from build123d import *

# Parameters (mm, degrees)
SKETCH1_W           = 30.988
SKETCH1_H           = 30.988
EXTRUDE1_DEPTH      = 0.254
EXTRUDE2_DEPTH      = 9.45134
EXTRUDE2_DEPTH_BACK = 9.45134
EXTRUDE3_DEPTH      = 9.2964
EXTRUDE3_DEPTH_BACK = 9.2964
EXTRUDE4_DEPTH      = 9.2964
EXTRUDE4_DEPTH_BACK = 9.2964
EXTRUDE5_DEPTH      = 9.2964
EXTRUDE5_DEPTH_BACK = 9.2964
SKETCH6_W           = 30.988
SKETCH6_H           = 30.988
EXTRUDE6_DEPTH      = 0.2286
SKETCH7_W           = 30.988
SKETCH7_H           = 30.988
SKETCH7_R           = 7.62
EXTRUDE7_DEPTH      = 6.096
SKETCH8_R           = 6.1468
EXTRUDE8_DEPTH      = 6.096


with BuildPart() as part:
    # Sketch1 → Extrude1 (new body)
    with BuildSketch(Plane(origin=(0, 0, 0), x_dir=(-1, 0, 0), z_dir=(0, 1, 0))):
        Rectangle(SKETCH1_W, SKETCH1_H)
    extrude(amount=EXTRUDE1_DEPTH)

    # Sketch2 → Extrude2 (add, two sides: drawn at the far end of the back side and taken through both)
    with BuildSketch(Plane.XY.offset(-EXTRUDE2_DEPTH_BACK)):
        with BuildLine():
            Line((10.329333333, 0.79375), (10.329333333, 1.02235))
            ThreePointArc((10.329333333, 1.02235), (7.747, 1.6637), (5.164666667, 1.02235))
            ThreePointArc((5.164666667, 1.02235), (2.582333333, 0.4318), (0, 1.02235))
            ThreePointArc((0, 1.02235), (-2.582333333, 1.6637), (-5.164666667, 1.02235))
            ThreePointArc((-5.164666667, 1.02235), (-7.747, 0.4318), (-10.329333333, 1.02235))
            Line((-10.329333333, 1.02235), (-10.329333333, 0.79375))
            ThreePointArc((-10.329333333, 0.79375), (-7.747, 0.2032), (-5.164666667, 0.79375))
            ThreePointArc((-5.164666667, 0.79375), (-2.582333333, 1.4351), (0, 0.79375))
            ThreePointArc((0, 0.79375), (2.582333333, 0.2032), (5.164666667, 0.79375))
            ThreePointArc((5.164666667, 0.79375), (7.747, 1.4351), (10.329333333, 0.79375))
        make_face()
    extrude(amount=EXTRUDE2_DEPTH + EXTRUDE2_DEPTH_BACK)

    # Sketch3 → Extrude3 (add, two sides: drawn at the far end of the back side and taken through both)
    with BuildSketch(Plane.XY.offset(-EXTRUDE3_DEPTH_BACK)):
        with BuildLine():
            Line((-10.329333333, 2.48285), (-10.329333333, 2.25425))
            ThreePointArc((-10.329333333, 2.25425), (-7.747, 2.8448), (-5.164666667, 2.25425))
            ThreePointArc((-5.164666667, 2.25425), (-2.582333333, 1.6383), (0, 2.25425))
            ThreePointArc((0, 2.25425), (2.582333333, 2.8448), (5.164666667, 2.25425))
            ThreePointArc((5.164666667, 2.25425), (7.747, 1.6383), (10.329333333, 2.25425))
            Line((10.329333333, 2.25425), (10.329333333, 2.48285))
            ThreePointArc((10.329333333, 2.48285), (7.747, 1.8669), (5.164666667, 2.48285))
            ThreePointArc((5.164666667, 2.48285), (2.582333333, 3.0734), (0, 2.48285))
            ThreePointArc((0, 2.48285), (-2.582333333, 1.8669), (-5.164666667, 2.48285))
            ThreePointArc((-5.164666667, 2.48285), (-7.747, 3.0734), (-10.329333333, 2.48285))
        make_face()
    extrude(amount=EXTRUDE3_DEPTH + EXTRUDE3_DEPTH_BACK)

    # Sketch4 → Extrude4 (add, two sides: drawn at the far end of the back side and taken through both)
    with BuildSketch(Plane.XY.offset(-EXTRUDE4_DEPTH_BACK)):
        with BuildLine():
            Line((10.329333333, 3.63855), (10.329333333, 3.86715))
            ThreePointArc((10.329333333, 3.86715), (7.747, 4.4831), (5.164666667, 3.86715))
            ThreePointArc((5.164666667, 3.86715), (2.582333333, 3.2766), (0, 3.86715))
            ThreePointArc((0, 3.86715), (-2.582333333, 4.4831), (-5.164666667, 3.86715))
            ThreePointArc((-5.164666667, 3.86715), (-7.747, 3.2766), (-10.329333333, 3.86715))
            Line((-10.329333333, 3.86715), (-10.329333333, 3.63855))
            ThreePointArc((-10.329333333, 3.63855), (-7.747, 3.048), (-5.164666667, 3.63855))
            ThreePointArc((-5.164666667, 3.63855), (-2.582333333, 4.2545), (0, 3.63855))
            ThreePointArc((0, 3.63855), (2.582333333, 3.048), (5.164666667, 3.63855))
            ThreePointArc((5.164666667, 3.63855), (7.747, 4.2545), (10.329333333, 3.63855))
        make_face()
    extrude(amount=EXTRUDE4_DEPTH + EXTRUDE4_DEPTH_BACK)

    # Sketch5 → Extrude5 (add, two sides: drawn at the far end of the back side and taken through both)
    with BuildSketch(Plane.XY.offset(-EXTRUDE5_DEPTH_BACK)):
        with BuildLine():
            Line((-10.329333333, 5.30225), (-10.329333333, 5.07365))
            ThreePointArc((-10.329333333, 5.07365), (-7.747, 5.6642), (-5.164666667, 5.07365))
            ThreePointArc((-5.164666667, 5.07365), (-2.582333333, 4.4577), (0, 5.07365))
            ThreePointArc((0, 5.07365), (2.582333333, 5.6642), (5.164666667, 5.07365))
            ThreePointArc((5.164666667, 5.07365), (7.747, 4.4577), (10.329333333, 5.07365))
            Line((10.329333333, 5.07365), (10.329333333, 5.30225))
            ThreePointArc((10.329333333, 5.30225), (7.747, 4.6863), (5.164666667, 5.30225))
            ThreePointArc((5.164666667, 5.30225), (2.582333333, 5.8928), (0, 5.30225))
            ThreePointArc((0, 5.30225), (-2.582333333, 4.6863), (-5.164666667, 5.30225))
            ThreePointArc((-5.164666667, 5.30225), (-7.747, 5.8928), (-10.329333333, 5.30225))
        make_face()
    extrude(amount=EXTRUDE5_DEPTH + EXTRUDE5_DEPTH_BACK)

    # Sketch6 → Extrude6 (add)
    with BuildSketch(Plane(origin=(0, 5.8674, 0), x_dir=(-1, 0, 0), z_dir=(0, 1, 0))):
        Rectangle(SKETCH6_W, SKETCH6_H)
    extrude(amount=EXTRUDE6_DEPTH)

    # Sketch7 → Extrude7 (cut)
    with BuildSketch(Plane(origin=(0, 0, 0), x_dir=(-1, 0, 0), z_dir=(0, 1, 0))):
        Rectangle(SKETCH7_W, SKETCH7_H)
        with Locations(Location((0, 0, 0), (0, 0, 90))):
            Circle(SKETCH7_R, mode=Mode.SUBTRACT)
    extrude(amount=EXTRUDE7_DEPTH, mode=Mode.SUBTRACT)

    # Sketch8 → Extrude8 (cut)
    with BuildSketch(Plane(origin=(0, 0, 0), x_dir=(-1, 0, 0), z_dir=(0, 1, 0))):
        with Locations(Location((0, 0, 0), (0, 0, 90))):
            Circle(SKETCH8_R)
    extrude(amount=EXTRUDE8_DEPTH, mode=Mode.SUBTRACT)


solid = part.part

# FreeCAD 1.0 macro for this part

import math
import FreeCAD as App
import Part
import Sketcher
Q = App.Units.Quantity


def add_polygon(sketch, points):
    """Adds a closed chain of lines whose ends are joined by coincident constraints."""
    first, n = sketch.GeometryCount, len(points)
    for a, b in zip(points, points[1:] + points[:1]):
        sketch.addGeometry(Part.LineSegment(App.Vector(*a, 0), App.Vector(*b, 0)), False)
    for i in range(n):
        sketch.addConstraint(Sketcher.Constraint("Coincident", first + i, 2, first + (i + 1) % n, 1))

doc = App.newDocument("Part")
params = doc.addObject("Spreadsheet::Sheet", "Params")
for row, (alias, value) in enumerate([
    ("sketch1_width", "1.22 in"),
    ("pad1_length", "0.01 in"),
    ("sketch2_height", "0.009 in"),
    ("pad2_length", "0.3721 in"),
    ("pad2_length2", "0.3721 in"),
    ("sketch3_height", "0.009 in"),
    ("pad3_length", "0.366 in"),
    ("pad3_length2", "0.366 in"),
    ("sketch4_height", "0.009 in"),
    ("pad4_length", "0.366 in"),
    ("pad4_length2", "0.366 in"),
    ("sketch5_height", "0.009 in"),
    ("pad5_length", "0.366 in"),
    ("pad5_length2", "0.366 in"),
    ("sketch6_width", "1.22 in"),
    ("pad6_length", "0.009 in"),
    ("sketch7_diameter", "0.6 in"),
    ("sketch7_width", "1.22 in"),
    ("pocket1_length", "0.24 in"),
    ("sketch8_diameter", "0.484 in"),
    ("pocket2_length", "0.24 in"),
], start=1):
    params.set(f"A{row}", alias)
    params.set(f"B{row}", "=" + value)
    params.setAlias(f"B{row}", alias)

body = doc.addObject("PartDesign::Body", "Body")

# Sketch on XZ plane
sketch1 = body.newObject("Sketcher::SketchObject", "Sketch")
sketch1.AttachmentSupport = (doc.getObject("XZ_Plane"), [""])
sketch1.MapMode = "FlatFace"
add_polygon(sketch1, [(15, 15), (15, -15), (-15, -15), (-15, 15)])  # lines 0-3
sketch1.addConstraint([
    Sketcher.Constraint("Vertical", 0),
    Sketcher.Constraint("Horizontal", 1),
    Sketcher.Constraint("Vertical", 2),
    Sketcher.Constraint("Horizontal", 3),
    Sketcher.Constraint("Symmetric", 0, 2, 2, 2, -1, 1),
    Sketcher.Constraint("Equal", 3, 0),
    Sketcher.Constraint("DistanceX", 1, 2, 1, 1, Q("1.22 in")),
])
sketch1.setExpression("Constraints[10]", "Params.sketch1_width")
pad1 = body.newObject("PartDesign::Pad", "Pad")
pad1.Profile = sketch1
pad1.setExpression("Length", "Params.pad1_length")
pad1.Reversed = True

# Sketch on XY plane
sketch2 = body.newObject("Sketcher::SketchObject", "Sketch001")
sketch2.AttachmentSupport = (doc.getObject("XY_Plane"), [""])
sketch2.MapMode = "FlatFace"
sketch2.addGeometry([
    Part.LineSegment(App.Vector(10.33, 0.79, 0), App.Vector(10.33, 1.02, 0)),  # 0
    Part.ArcOfCircle(Part.Circle(App.Vector(7.75, -3.86, 0), App.Vector(0, 0, 1), 5.52), math.radians(62), math.radians(118)),  # 1
    Part.ArcOfCircle(Part.Circle(App.Vector(2.58, 6.37, 0), App.Vector(0, 0, 1), 5.94), math.radians(-116), math.radians(-64)),  # 2
    Part.ArcOfCircle(Part.Circle(App.Vector(-2.58, -3.86, 0), App.Vector(0, 0, 1), 5.52), math.radians(62), math.radians(118)),  # 3
    Part.ArcOfCircle(Part.Circle(App.Vector(-7.75, 6.37, 0), App.Vector(0, 0, 1), 5.94), math.radians(-116), math.radians(-64)),  # 4
    Part.LineSegment(App.Vector(-10.33, 1.02, 0), App.Vector(-10.33, 0.79, 0)),  # 5
    Part.ArcOfCircle(Part.Circle(App.Vector(-7.75, 6.14, 0), App.Vector(0, 0, 1), 5.94), math.radians(-116), math.radians(-64)),  # 6
    Part.ArcOfCircle(Part.Circle(App.Vector(-2.58, -4.08, 0), App.Vector(0, 0, 1), 5.52), math.radians(62), math.radians(118)),  # 7
    Part.ArcOfCircle(Part.Circle(App.Vector(2.58, 6.14, 0), App.Vector(0, 0, 1), 5.94), math.radians(-116), math.radians(-64)),  # 8
    Part.ArcOfCircle(Part.Circle(App.Vector(7.75, -4.08, 0), App.Vector(0, 0, 1), 5.52), math.radians(62), math.radians(118)),  # 9
], False)
sketch2.addConstraint([
    Sketcher.Constraint("Coincident", 0, 2, 1, 1),
    Sketcher.Constraint("Coincident", 1, 2, 2, 2),
    Sketcher.Constraint("Coincident", 2, 1, 3, 1),
    Sketcher.Constraint("Coincident", 3, 2, 4, 2),
    Sketcher.Constraint("Coincident", 4, 1, 5, 1),
    Sketcher.Constraint("Coincident", 5, 2, 6, 1),
    Sketcher.Constraint("Coincident", 6, 2, 7, 2),
    Sketcher.Constraint("Coincident", 7, 1, 8, 1),
    Sketcher.Constraint("Coincident", 8, 2, 9, 2),
    Sketcher.Constraint("Coincident", 9, 1, 0, 1),
    Sketcher.Constraint("Vertical", 0),
    Sketcher.Constraint("Vertical", 5),
    Sketcher.Constraint("Equal", 1, 3),
    Sketcher.Constraint("Equal", 2, 4),
    Sketcher.Constraint("Equal", 4, 6),
    Sketcher.Constraint("Equal", 3, 7),
    Sketcher.Constraint("Equal", 6, 8),
    Sketcher.Constraint("Equal", 7, 9),
    Sketcher.Constraint("Symmetric", 1, 2, 3, 2, -2),
    Sketcher.Constraint("Symmetric", 0, 2, 4, 1, -2),
    Sketcher.Constraint("Symmetric", 6, 2, 8, 2, -2),
    Sketcher.Constraint("PointOnObject", 2, 1, -2),
    Sketcher.Constraint("PointOnObject", 7, 1, -2),
    Sketcher.Constraint("Horizontal", 1, 3, 3, 3),
    Sketcher.Constraint("Horizontal", 2, 3, 4, 3),
    Sketcher.Constraint("Horizontal", 6, 3, 8, 3),
    Sketcher.Constraint("Horizontal", 7, 3, 9, 3),
    Sketcher.Constraint("Horizontal", 0, 2, 1, 2),
    Sketcher.Constraint("Horizontal", 5, 2, 6, 2),
    Sketcher.Constraint("Horizontal", 6, 2, 7, 1),
    Sketcher.Constraint("DistanceY", 0, 1, 0, 2, Q("0.009 in")),
    Sketcher.Constraint("DistanceX", 4, 3, 1, 3, Q("0.61 in")),
    Sketcher.Constraint("DistanceY", -1, 1, 5, 2, Q("0.03125 in")),
    Sketcher.Constraint("Radius", 1, 5.519432),
    Sketcher.Constraint("Radius", 2, 5.941237),
])
sketch2.setExpression("Constraints[30]", "Params.sketch2_height")
pad2 = body.newObject("PartDesign::Pad", "Pad001")
pad2.Profile = sketch2
pad2.Type = "TwoLengths"
pad2.setExpression("Length", "Params.pad2_length")
pad2.setExpression("Length2", "Params.pad2_length2")

# Sketch on XY plane
sketch3 = body.newObject("Sketcher::SketchObject", "Sketch002")
sketch3.AttachmentSupport = (doc.getObject("XY_Plane"), [""])
sketch3.MapMode = "FlatFace"
sketch3.addGeometry([
    Part.LineSegment(App.Vector(-10.33, 2.48, 0), App.Vector(-10.33, 2.25, 0)),  # 0
    Part.ArcOfCircle(Part.Circle(App.Vector(-7.75, -3.1, 0), App.Vector(0, 0, 1), 5.94), math.radians(64), math.radians(116)),  # 1
    Part.ArcOfCircle(Part.Circle(App.Vector(-2.58, 7.36, 0), App.Vector(0, 0, 1), 5.72), math.radians(-117), math.radians(-63)),  # 2
    Part.ArcOfCircle(Part.Circle(App.Vector(2.58, -3.1, 0), App.Vector(0, 0, 1), 5.94), math.radians(64), math.radians(116)),  # 3
    Part.ArcOfCircle(Part.Circle(App.Vector(7.75, 7.36, 0), App.Vector(0, 0, 1), 5.72), math.radians(-117), math.radians(-63)),  # 4
    Part.LineSegment(App.Vector(10.33, 2.25, 0), App.Vector(10.33, 2.48, 0)),  # 5
    Part.ArcOfCircle(Part.Circle(App.Vector(7.75, 7.59, 0), App.Vector(0, 0, 1), 5.72), math.radians(-117), math.radians(-63)),  # 6
    Part.ArcOfCircle(Part.Circle(App.Vector(2.58, -2.87, 0), App.Vector(0, 0, 1), 5.94), math.radians(64), math.radians(116)),  # 7
    Part.ArcOfCircle(Part.Circle(App.Vector(-2.58, 7.59, 0), App.Vector(0, 0, 1), 5.72), math.radians(-117), math.radians(-63)),  # 8
    Part.ArcOfCircle(Part.Circle(App.Vector(-7.75, -2.87, 0), App.Vector(0, 0, 1), 5.94), math.radians(64), math.radians(116)),  # 9
], False)
sketch3.addConstraint([
    Sketcher.Constraint("Coincident", 0, 2, 1, 2),
    Sketcher.Constraint("Coincident", 1, 1, 2, 1),
    Sketcher.Constraint("Coincident", 2, 2, 3, 2),
    Sketcher.Constraint("Coincident", 3, 1, 4, 1),
    Sketcher.Constraint("Coincident", 4, 2, 5, 1),
    Sketcher.Constraint("Coincident", 5, 2, 6, 2),
    Sketcher.Constraint("Coincident", 6, 1, 7, 1),
    Sketcher.Constraint("Coincident", 7, 2, 8, 2),
    Sketcher.Constraint("Coincident", 8, 1, 9, 1),
    Sketcher.Constraint("Coincident", 9, 2, 0, 1),
    Sketcher.Constraint("Vertical", 0),
    Sketcher.Constraint("Vertical", 5),
    Sketcher.Constraint("Equal", 1, 3),
    Sketcher.Constraint("Equal", 2, 4),
    Sketcher.Constraint("Equal", 4, 6),
    Sketcher.Constraint("Equal", 3, 7),
    Sketcher.Constraint("Equal", 6, 8),
    Sketcher.Constraint("Equal", 7, 9),
    Sketcher.Constraint("Symmetric", 1, 1, 3, 1, -2),
    Sketcher.Constraint("Symmetric", 0, 2, 4, 2, -2),
    Sketcher.Constraint("Symmetric", 6, 1, 8, 1, -2),
    Sketcher.Constraint("PointOnObject", 2, 2, -2),
    Sketcher.Constraint("PointOnObject", 7, 2, -2),
    Sketcher.Constraint("Horizontal", 1, 3, 3, 3),
    Sketcher.Constraint("Horizontal", 2, 3, 4, 3),
    Sketcher.Constraint("Horizontal", 6, 3, 8, 3),
    Sketcher.Constraint("Horizontal", 7, 3, 9, 3),
    Sketcher.Constraint("Horizontal", 0, 2, 1, 1),
    Sketcher.Constraint("Horizontal", 5, 2, 6, 1),
    Sketcher.Constraint("Horizontal", 6, 1, 7, 2),
    Sketcher.Constraint("DistanceY", 0, 2, 0, 1, Q("0.009 in")),
    Sketcher.Constraint("DistanceX", 1, 3, 4, 3, Q("0.61 in")),
    Sketcher.Constraint("Radius", 1, 5.941237),
    Sketcher.Constraint("Radius", 2, 5.721114),
    Sketcher.Constraint("DistanceY", -1, 1, 0, 2, 2.25425),
])
sketch3.setExpression("Constraints[30]", "Params.sketch3_height")
pad3 = body.newObject("PartDesign::Pad", "Pad002")
pad3.Profile = sketch3
pad3.Type = "TwoLengths"
pad3.setExpression("Length", "Params.pad3_length")
pad3.setExpression("Length2", "Params.pad3_length2")

# Sketch on XY plane
sketch4 = body.newObject("Sketcher::SketchObject", "Sketch003")
sketch4.AttachmentSupport = (doc.getObject("XY_Plane"), [""])
sketch4.MapMode = "FlatFace"
sketch4.addGeometry([
    Part.LineSegment(App.Vector(10.33, 3.64, 0), App.Vector(10.33, 3.87, 0)),  # 0
    Part.ArcOfCircle(Part.Circle(App.Vector(7.75, -1.24, 0), App.Vector(0, 0, 1), 5.72), math.radians(63), math.radians(117)),  # 1
    Part.ArcOfCircle(Part.Circle(App.Vector(2.58, 9.22, 0), App.Vector(0, 0, 1), 5.94), math.radians(-116), math.radians(-64)),  # 2
    Part.ArcOfCircle(Part.Circle(App.Vector(-2.58, -1.24, 0), App.Vector(0, 0, 1), 5.72), math.radians(63), math.radians(117)),  # 3
    Part.ArcOfCircle(Part.Circle(App.Vector(-7.75, 9.22, 0), App.Vector(0, 0, 1), 5.94), math.radians(-116), math.radians(-64)),  # 4
    Part.LineSegment(App.Vector(-10.33, 3.87, 0), App.Vector(-10.33, 3.64, 0)),  # 5
    Part.ArcOfCircle(Part.Circle(App.Vector(-7.75, 8.99, 0), App.Vector(0, 0, 1), 5.94), math.radians(-116), math.radians(-64)),  # 6
    Part.ArcOfCircle(Part.Circle(App.Vector(-2.58, -1.47, 0), App.Vector(0, 0, 1), 5.72), math.radians(63), math.radians(117)),  # 7
    Part.ArcOfCircle(Part.Circle(App.Vector(2.58, 8.99, 0), App.Vector(0, 0, 1), 5.94), math.radians(-116), math.radians(-64)),  # 8
    Part.ArcOfCircle(Part.Circle(App.Vector(7.75, -1.47, 0), App.Vector(0, 0, 1), 5.72), math.radians(63), math.radians(117)),  # 9
], False)
sketch4.addConstraint([
    Sketcher.Constraint("Coincident", 0, 2, 1, 1),
    Sketcher.Constraint("Coincident", 1, 2, 2, 2),
    Sketcher.Constraint("Coincident", 2, 1, 3, 1),
    Sketcher.Constraint("Coincident", 3, 2, 4, 2),
    Sketcher.Constraint("Coincident", 4, 1, 5, 1),
    Sketcher.Constraint("Coincident", 5, 2, 6, 1),
    Sketcher.Constraint("Coincident", 6, 2, 7, 2),
    Sketcher.Constraint("Coincident", 7, 1, 8, 1),
    Sketcher.Constraint("Coincident", 8, 2, 9, 2),
    Sketcher.Constraint("Coincident", 9, 1, 0, 1),
    Sketcher.Constraint("Vertical", 0),
    Sketcher.Constraint("Vertical", 5),
    Sketcher.Constraint("Equal", 1, 3),
    Sketcher.Constraint("Equal", 2, 4),
    Sketcher.Constraint("Equal", 4, 6),
    Sketcher.Constraint("Equal", 3, 7),
    Sketcher.Constraint("Equal", 6, 8),
    Sketcher.Constraint("Equal", 7, 9),
    Sketcher.Constraint("Symmetric", 1, 2, 3, 2, -2),
    Sketcher.Constraint("Symmetric", 0, 2, 4, 1, -2),
    Sketcher.Constraint("Symmetric", 6, 2, 8, 2, -2),
    Sketcher.Constraint("PointOnObject", 2, 1, -2),
    Sketcher.Constraint("PointOnObject", 7, 1, -2),
    Sketcher.Constraint("Horizontal", 1, 3, 3, 3),
    Sketcher.Constraint("Horizontal", 2, 3, 4, 3),
    Sketcher.Constraint("Horizontal", 6, 3, 8, 3),
    Sketcher.Constraint("Horizontal", 7, 3, 9, 3),
    Sketcher.Constraint("Horizontal", 0, 2, 1, 2),
    Sketcher.Constraint("Horizontal", 5, 2, 6, 2),
    Sketcher.Constraint("Horizontal", 6, 2, 7, 1),
    Sketcher.Constraint("DistanceY", 0, 1, 0, 2, Q("0.009 in")),
    Sketcher.Constraint("DistanceX", 4, 3, 1, 3, Q("0.61 in")),
    Sketcher.Constraint("Radius", 1, 5.721114),
    Sketcher.Constraint("Radius", 2, 5.941237),
    Sketcher.Constraint("DistanceY", -1, 1, 0, 2, 3.86715),
])
sketch4.setExpression("Constraints[30]", "Params.sketch4_height")
pad4 = body.newObject("PartDesign::Pad", "Pad003")
pad4.Profile = sketch4
pad4.Type = "TwoLengths"
pad4.setExpression("Length", "Params.pad4_length")
pad4.setExpression("Length2", "Params.pad4_length2")

# Sketch on XY plane
sketch5 = body.newObject("Sketcher::SketchObject", "Sketch004")
sketch5.AttachmentSupport = (doc.getObject("XY_Plane"), [""])
sketch5.MapMode = "FlatFace"
sketch5.addGeometry([
    Part.LineSegment(App.Vector(-10.33, 5.3, 0), App.Vector(-10.33, 5.07, 0)),  # 0
    Part.ArcOfCircle(Part.Circle(App.Vector(-7.75, -0.28, 0), App.Vector(0, 0, 1), 5.94), math.radians(64), math.radians(116)),  # 1
    Part.ArcOfCircle(Part.Circle(App.Vector(-2.58, 10.18, 0), App.Vector(0, 0, 1), 5.72), math.radians(-117), math.radians(-63)),  # 2
    Part.ArcOfCircle(Part.Circle(App.Vector(2.58, -0.28, 0), App.Vector(0, 0, 1), 5.94), math.radians(64), math.radians(116)),  # 3
    Part.ArcOfCircle(Part.Circle(App.Vector(7.75, 10.18, 0), App.Vector(0, 0, 1), 5.72), math.radians(-117), math.radians(-63)),  # 4
    Part.LineSegment(App.Vector(10.33, 5.07, 0), App.Vector(10.33, 5.3, 0)),  # 5
    Part.ArcOfCircle(Part.Circle(App.Vector(7.75, 10.41, 0), App.Vector(0, 0, 1), 5.72), math.radians(-117), math.radians(-63)),  # 6
    Part.ArcOfCircle(Part.Circle(App.Vector(2.58, -0.05, 0), App.Vector(0, 0, 1), 5.94), math.radians(64), math.radians(116)),  # 7
    Part.ArcOfCircle(Part.Circle(App.Vector(-2.58, 10.41, 0), App.Vector(0, 0, 1), 5.72), math.radians(-117), math.radians(-63)),  # 8
    Part.ArcOfCircle(Part.Circle(App.Vector(-7.75, -0.05, 0), App.Vector(0, 0, 1), 5.94), math.radians(64), math.radians(116)),  # 9
], False)
sketch5.addConstraint([
    Sketcher.Constraint("Coincident", 0, 2, 1, 2),
    Sketcher.Constraint("Coincident", 1, 1, 2, 1),
    Sketcher.Constraint("Coincident", 2, 2, 3, 2),
    Sketcher.Constraint("Coincident", 3, 1, 4, 1),
    Sketcher.Constraint("Coincident", 4, 2, 5, 1),
    Sketcher.Constraint("Coincident", 5, 2, 6, 2),
    Sketcher.Constraint("Coincident", 6, 1, 7, 1),
    Sketcher.Constraint("Coincident", 7, 2, 8, 2),
    Sketcher.Constraint("Coincident", 8, 1, 9, 1),
    Sketcher.Constraint("Coincident", 9, 2, 0, 1),
    Sketcher.Constraint("Vertical", 0),
    Sketcher.Constraint("Vertical", 5),
    Sketcher.Constraint("Equal", 1, 3),
    Sketcher.Constraint("Equal", 2, 4),
    Sketcher.Constraint("Equal", 4, 6),
    Sketcher.Constraint("Equal", 3, 7),
    Sketcher.Constraint("Equal", 6, 8),
    Sketcher.Constraint("Equal", 7, 9),
    Sketcher.Constraint("Symmetric", 1, 1, 3, 1, -2),
    Sketcher.Constraint("Symmetric", 0, 2, 4, 2, -2),
    Sketcher.Constraint("Symmetric", 6, 1, 8, 1, -2),
    Sketcher.Constraint("PointOnObject", 2, 2, -2),
    Sketcher.Constraint("PointOnObject", 7, 2, -2),
    Sketcher.Constraint("Horizontal", 1, 3, 3, 3),
    Sketcher.Constraint("Horizontal", 2, 3, 4, 3),
    Sketcher.Constraint("Horizontal", 6, 3, 8, 3),
    Sketcher.Constraint("Horizontal", 7, 3, 9, 3),
    Sketcher.Constraint("Horizontal", 0, 2, 1, 1),
    Sketcher.Constraint("Horizontal", 5, 2, 6, 1),
    Sketcher.Constraint("Horizontal", 6, 1, 7, 2),
    Sketcher.Constraint("DistanceY", 0, 2, 0, 1, Q("0.009 in")),
    Sketcher.Constraint("DistanceX", 1, 3, 4, 3, Q("0.61 in")),
    Sketcher.Constraint("Radius", 1, 5.941237),
    Sketcher.Constraint("Radius", 2, 5.721114),
    Sketcher.Constraint("DistanceY", -1, 1, 0, 2, 5.07365),
])
sketch5.setExpression("Constraints[30]", "Params.sketch5_height")
pad5 = body.newObject("PartDesign::Pad", "Pad004")
pad5.Profile = sketch5
pad5.Type = "TwoLengths"
pad5.setExpression("Length", "Params.pad5_length")
pad5.setExpression("Length2", "Params.pad5_length2")

# Sketch on XZ plane
sketch6 = body.newObject("Sketcher::SketchObject", "Sketch005")
sketch6.AttachmentSupport = (doc.getObject("XZ_Plane"), [""])
sketch6.MapMode = "FlatFace"
sketch6.AttachmentOffset = App.Placement(App.Vector(0, 0, -0.231 * 25.4), App.Rotation())
add_polygon(sketch6, [(15, 15), (15, -15), (-15, -15), (-15, 15)])  # lines 0-3
sketch6.addConstraint([
    Sketcher.Constraint("Vertical", 0),
    Sketcher.Constraint("Horizontal", 1),
    Sketcher.Constraint("Vertical", 2),
    Sketcher.Constraint("Horizontal", 3),
    Sketcher.Constraint("Symmetric", 0, 2, 2, 2, -1, 1),
    Sketcher.Constraint("Equal", 3, 0),
    Sketcher.Constraint("DistanceX", 1, 2, 1, 1, Q("1.22 in")),
])
sketch6.setExpression("Constraints[10]", "Params.sketch6_width")
pad6 = body.newObject("PartDesign::Pad", "Pad005")
pad6.Profile = sketch6
pad6.setExpression("Length", "Params.pad6_length")
pad6.Reversed = True

# Sketch on XZ plane
sketch7 = body.newObject("Sketcher::SketchObject", "Sketch006")
sketch7.AttachmentSupport = (doc.getObject("XZ_Plane"), [""])
sketch7.MapMode = "FlatFace"
add_polygon(sketch7, [(15, 15), (15, -15), (-15, -15), (-15, 15)])  # lines 0-3
sketch7.addGeometry(Part.Circle(App.Vector(0, 0, 0), App.Vector(0, 0, 1), 8), False)  # 4
sketch7.addConstraint([
    Sketcher.Constraint("Vertical", 0),
    Sketcher.Constraint("Horizontal", 1),
    Sketcher.Constraint("Vertical", 2),
    Sketcher.Constraint("Horizontal", 3),
    Sketcher.Constraint("Coincident", 4, 3, -1, 1),
    Sketcher.Constraint("Symmetric", 0, 2, 2, 2, -1, 1),
    Sketcher.Constraint("Equal", 3, 0),
    Sketcher.Constraint("Diameter", 4, Q("0.6 in")),
    Sketcher.Constraint("DistanceX", 1, 2, 1, 1, Q("1.22 in")),
])
sketch7.setExpression("Constraints[11]", "Params.sketch7_diameter")
sketch7.setExpression("Constraints[12]", "Params.sketch7_width")
pocket1 = body.newObject("PartDesign::Pocket", "Pocket")
pocket1.Profile = sketch7
pocket1.setExpression("Length", "Params.pocket1_length")

# Sketch on XZ plane
sketch8 = body.newObject("Sketcher::SketchObject", "Sketch007")
sketch8.AttachmentSupport = (doc.getObject("XZ_Plane"), [""])
sketch8.MapMode = "FlatFace"
sketch8.addGeometry(Part.Circle(App.Vector(0, 0, 0), App.Vector(0, 0, 1), 6), False)
sketch8.addConstraint([
    Sketcher.Constraint("Coincident", 0, 3, -1, 1),
    Sketcher.Constraint("Diameter", 0, Q("0.484 in")),
])
sketch8.setExpression("Constraints[1]", "Params.sketch8_diameter")
pocket2 = body.newObject("PartDesign::Pocket", "Pocket001")
pocket2.Profile = sketch8
pocket2.setExpression("Length", "Params.pocket2_length")

doc.recompute()
